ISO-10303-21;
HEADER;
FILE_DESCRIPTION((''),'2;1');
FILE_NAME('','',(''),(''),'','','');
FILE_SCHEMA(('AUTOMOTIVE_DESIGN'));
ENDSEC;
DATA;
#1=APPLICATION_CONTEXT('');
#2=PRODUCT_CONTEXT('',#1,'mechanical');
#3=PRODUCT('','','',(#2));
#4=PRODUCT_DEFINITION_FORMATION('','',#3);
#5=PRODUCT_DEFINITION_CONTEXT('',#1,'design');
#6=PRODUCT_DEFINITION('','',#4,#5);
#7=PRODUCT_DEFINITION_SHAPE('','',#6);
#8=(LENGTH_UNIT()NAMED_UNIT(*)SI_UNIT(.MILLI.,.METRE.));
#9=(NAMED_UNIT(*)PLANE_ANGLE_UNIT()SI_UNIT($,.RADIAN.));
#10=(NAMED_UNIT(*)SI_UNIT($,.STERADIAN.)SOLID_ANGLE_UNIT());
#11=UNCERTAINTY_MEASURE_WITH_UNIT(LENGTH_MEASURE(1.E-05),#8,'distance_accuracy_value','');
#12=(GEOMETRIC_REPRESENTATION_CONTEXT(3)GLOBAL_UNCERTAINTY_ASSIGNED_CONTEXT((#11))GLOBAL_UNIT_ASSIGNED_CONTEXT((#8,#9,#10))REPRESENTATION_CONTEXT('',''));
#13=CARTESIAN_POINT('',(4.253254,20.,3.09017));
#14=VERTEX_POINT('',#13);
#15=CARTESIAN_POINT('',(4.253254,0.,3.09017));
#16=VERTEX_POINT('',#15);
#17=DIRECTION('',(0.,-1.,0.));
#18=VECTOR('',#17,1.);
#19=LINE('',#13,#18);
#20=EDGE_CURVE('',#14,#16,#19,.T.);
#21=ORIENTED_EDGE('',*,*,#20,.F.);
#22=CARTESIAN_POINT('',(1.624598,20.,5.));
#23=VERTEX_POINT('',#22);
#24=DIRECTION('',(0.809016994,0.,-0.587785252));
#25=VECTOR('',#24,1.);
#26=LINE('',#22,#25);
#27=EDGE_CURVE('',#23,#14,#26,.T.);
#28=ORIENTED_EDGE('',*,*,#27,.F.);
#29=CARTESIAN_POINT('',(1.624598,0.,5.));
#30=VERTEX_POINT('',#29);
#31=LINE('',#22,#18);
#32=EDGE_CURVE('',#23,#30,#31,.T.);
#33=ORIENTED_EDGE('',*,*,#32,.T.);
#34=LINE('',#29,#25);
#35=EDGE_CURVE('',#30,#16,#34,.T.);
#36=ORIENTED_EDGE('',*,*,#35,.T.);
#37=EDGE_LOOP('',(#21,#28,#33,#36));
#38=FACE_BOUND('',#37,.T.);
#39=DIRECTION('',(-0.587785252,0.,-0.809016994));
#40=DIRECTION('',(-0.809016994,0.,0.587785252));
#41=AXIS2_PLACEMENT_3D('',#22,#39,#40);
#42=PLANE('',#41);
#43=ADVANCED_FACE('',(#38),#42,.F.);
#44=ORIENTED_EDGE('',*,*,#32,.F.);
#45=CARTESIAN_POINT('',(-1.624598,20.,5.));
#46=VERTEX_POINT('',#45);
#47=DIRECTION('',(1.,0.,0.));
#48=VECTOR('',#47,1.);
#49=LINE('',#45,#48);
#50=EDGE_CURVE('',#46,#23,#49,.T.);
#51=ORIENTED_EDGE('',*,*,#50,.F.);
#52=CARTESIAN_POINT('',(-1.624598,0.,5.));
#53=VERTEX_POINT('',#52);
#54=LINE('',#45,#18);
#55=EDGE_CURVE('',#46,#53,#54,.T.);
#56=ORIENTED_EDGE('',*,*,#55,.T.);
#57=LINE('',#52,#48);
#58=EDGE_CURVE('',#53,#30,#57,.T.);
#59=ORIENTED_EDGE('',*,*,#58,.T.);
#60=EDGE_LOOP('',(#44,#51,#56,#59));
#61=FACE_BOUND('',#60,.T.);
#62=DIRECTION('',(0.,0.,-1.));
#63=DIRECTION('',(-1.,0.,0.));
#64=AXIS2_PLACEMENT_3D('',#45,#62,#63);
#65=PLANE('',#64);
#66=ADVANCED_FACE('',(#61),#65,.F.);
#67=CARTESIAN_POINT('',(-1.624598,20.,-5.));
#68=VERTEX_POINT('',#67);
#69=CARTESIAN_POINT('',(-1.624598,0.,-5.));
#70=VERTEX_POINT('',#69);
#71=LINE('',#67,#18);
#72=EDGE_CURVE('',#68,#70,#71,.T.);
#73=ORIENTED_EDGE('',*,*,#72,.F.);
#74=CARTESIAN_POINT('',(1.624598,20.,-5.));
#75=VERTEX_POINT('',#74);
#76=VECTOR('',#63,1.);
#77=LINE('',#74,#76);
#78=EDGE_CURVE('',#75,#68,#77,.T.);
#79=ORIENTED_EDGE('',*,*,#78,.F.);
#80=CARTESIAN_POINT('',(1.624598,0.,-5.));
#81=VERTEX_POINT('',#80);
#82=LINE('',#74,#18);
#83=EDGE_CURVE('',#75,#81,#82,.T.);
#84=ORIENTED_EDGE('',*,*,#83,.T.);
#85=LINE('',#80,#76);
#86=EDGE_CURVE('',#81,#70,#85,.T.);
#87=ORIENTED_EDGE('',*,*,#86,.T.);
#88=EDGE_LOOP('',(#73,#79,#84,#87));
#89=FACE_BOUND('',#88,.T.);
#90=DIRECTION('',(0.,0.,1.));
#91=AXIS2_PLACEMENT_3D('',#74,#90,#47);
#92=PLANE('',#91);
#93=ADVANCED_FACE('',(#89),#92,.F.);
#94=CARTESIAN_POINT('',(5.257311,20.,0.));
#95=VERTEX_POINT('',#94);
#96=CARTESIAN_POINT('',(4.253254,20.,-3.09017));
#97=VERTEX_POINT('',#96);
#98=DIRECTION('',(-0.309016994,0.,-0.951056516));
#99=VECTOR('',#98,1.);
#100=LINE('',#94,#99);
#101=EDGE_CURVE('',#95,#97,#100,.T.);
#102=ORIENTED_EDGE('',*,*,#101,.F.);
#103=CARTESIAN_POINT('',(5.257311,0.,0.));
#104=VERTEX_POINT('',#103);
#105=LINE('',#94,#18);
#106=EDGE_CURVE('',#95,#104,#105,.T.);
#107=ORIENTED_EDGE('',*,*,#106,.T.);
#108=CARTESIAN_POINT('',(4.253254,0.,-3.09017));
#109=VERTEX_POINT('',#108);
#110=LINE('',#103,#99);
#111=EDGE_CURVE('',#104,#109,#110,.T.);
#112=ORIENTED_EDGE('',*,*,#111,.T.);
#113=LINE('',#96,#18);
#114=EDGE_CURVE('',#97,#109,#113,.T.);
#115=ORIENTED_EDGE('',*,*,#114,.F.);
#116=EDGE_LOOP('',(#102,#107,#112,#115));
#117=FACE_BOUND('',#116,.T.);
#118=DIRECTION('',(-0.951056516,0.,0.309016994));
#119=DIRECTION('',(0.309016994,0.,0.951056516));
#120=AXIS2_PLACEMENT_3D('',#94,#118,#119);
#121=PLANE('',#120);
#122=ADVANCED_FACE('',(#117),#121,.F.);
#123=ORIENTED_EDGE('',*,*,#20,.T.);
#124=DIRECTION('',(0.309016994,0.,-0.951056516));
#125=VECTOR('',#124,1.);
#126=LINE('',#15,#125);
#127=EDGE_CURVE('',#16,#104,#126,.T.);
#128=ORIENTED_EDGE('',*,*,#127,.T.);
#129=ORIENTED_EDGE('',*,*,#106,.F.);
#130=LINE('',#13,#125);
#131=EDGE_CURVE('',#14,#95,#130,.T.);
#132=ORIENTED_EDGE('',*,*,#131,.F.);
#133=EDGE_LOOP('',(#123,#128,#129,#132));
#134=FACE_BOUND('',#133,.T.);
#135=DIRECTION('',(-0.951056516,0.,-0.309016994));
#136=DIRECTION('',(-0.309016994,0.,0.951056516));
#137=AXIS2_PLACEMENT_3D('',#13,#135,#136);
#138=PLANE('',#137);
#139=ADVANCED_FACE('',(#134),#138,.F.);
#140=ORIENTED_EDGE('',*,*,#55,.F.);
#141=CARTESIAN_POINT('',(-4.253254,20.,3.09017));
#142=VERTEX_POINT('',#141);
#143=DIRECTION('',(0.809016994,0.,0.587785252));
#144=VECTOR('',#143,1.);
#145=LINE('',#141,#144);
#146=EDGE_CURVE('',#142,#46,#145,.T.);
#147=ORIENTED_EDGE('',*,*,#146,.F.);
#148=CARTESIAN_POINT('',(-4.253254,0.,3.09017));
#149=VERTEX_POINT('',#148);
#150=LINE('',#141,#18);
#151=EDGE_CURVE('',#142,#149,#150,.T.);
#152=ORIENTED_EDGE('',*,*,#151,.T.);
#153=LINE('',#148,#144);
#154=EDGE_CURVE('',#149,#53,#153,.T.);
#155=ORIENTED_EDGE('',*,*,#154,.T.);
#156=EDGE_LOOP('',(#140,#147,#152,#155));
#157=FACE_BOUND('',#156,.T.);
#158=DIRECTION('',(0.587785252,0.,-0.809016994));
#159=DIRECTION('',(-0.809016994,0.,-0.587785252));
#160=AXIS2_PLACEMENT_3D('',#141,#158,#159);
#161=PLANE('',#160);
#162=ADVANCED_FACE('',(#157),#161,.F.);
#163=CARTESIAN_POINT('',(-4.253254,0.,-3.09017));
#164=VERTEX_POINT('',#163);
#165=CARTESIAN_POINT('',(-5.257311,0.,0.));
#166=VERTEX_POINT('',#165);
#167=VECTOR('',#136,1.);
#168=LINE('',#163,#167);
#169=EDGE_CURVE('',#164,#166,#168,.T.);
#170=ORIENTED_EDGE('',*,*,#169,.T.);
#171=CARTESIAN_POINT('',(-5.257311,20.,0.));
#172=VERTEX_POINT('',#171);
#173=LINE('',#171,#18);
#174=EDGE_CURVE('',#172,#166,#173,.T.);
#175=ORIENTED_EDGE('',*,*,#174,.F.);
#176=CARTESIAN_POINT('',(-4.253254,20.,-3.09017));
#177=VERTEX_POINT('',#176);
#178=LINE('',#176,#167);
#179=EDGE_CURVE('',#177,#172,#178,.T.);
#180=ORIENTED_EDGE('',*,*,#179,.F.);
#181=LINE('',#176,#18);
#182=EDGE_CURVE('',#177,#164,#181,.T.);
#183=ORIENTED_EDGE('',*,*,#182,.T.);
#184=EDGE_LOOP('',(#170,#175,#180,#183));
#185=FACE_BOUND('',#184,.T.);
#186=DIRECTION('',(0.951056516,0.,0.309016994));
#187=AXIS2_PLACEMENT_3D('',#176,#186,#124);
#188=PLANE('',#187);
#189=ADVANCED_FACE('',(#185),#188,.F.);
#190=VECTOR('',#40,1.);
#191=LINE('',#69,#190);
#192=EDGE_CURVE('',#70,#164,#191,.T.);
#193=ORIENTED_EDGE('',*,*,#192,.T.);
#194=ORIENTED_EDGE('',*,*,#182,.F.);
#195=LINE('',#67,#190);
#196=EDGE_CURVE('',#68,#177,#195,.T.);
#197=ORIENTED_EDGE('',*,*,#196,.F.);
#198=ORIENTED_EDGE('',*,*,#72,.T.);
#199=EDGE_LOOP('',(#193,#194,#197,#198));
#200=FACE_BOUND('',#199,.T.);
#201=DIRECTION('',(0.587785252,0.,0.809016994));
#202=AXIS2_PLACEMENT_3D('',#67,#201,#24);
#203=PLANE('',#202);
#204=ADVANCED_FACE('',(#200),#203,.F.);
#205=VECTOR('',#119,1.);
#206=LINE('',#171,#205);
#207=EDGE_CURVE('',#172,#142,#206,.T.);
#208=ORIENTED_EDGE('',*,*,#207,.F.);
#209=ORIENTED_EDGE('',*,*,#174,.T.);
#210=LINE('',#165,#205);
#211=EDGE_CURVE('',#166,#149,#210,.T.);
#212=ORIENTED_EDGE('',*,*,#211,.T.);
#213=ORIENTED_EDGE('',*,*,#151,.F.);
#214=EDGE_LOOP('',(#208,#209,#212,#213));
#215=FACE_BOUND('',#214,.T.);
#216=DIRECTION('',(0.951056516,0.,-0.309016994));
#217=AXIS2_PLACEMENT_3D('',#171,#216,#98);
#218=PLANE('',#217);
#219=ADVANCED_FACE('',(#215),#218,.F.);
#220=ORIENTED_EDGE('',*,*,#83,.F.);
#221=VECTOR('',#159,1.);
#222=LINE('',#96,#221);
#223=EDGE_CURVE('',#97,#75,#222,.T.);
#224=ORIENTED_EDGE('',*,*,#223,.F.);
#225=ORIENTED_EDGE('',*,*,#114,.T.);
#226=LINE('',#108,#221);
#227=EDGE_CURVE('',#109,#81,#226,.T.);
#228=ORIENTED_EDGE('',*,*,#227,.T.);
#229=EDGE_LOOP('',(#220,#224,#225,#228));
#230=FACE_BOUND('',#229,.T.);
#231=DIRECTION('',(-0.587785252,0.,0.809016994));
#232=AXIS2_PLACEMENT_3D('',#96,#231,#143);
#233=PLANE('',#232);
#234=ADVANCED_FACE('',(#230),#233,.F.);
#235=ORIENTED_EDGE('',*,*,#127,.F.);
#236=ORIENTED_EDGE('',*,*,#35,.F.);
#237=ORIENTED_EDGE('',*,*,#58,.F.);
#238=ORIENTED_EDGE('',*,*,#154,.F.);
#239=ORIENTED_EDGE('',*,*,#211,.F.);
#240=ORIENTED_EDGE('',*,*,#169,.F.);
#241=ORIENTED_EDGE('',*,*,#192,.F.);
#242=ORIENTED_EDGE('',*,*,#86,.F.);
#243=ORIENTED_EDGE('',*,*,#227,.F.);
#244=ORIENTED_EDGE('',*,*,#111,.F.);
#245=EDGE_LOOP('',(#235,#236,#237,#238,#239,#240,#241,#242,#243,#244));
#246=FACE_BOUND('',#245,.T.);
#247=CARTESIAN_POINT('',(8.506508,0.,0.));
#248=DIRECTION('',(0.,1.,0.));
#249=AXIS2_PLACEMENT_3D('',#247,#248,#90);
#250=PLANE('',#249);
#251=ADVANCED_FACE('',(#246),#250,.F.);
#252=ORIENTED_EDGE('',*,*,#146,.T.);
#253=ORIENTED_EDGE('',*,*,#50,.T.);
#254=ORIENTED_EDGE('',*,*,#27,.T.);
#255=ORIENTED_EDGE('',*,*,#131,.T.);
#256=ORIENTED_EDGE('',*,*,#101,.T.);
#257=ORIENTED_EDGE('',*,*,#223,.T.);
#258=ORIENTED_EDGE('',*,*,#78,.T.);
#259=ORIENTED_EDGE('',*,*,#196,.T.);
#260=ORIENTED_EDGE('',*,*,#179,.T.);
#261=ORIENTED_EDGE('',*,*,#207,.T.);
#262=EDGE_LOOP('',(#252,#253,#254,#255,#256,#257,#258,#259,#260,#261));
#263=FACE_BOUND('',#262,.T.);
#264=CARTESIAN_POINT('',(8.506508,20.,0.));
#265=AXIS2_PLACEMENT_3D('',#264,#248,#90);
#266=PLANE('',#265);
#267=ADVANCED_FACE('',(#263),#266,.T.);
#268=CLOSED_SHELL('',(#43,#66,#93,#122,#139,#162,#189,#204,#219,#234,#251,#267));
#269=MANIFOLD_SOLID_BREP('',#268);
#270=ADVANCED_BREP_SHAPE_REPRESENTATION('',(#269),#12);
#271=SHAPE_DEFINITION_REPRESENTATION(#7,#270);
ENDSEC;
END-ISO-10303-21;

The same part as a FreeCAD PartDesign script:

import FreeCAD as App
import Part
import Sketcher
from FreeCAD import Vector
Q = App.Units.Quantity


def add_polygon(sketch, points):
    """Adds a closed chain of lines whose ends are joined by coincident constraints."""
    first, n = sketch.GeometryCount, len(points)
    for a, b in zip(points, points[1:] + points[:1]):
        sketch.addGeometry(Part.LineSegment(App.Vector(*a, 0), App.Vector(*b, 0)), False)
    for i in range(n):
        sketch.addConstraint(Sketcher.Constraint("Coincident", first + i, 2, first + (i + 1) % n, 1))

doc = App.newDocument("Part")
body = doc.addObject("PartDesign::Body", "Body")

# Sketch on XZ plane
sketch1 = doc.addObject("Sketcher::SketchObject", "Sketch")
body.addObject(sketch1)
sketch1.AttachmentSupport = (doc.XZ_Plane, [""])
sketch1.MapMode = "FlatFace"
add_polygon(sketch1, [(4.3, 3.1), (5.3, 0), (4.3, -3.1), (1.6, -5), (-1.6, -5), (-4.3, -3.1), (-5.3, 0), (-4.3, 3.1), (-1.6, 5), (1.6, 5)])  # lines 0-9
sketch1.addConstraint([
    Sketcher.Constraint("Horizontal", 3),
    Sketcher.Constraint("Horizontal", 8),
    Sketcher.Constraint("Symmetric", 0, 2, 5, 2, -1, 1),
    Sketcher.Constraint("Symmetric", 1, 2, 6, 2, -1, 1),
    Sketcher.Constraint("Symmetric", 2, 2, 7, 2, -1, 1),
    Sketcher.Constraint("Symmetric", 4, 2, 9, 2, -1, 1),
    Sketcher.Constraint("Symmetric", 1, 2, 4, 2, -2),
    Sketcher.Constraint("PointOnObject", 0, 2, -1),
    Sketcher.Constraint("Parallel", 4, 9),
    Sketcher.Constraint("Vertical", 3, 2, 7, 2),
    Sketcher.Constraint("Equal", 1, 2),
    Sketcher.Constraint("Angle", 0, Q("-72 deg")),
    Sketcher.Constraint("Angle", 2, Q("-144 deg")),
    Sketcher.Constraint("DistanceY", 2, 2, -1, 1, Q("5 mm")),
    Sketcher.Constraint("DistanceX", -1, 1, 2, 2, Q("1.624598 mm")),
])
pad1 = doc.addObject("PartDesign::Pad", "Pad")
body.addObject(pad1)
pad1.Profile = sketch1
pad1.Length = 20
pad1.Reversed = True

doc.recompute()
